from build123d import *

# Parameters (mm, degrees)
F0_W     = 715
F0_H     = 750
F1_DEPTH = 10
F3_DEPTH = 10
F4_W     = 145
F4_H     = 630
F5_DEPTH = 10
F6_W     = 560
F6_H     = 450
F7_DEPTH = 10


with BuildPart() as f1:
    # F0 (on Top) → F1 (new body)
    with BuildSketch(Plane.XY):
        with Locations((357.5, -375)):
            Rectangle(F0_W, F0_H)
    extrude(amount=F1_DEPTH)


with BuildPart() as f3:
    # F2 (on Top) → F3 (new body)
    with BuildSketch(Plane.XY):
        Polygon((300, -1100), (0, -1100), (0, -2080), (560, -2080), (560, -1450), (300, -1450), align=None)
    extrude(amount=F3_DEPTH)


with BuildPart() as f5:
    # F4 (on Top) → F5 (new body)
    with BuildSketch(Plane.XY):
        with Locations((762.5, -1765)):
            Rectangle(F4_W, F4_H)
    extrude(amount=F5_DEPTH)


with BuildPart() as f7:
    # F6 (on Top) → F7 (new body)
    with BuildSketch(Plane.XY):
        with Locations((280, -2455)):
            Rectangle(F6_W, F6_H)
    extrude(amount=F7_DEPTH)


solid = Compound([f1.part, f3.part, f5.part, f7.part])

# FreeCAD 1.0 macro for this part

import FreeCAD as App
import Part
import Sketcher

V = App.Vector

doc = App.newDocument("Part")
body = doc.addObject("PartDesign::Body", "Body")

# Sketch on XY plane
sketch1 = doc.addObject("Sketcher::SketchObject", "Sketch")
body.addObject(sketch1)
sketch1.AttachmentSupport = (doc.XY_Plane, [""])
sketch1.MapMode = "FlatFace"
sketch1.addGeometry([
    Part.LineSegment(V(0, 0, 0), V(0, -750, 0)),
    Part.LineSegment(V(0, -750, 0), V(715, -750, 0)),
    Part.LineSegment(V(715, -750, 0), V(715, 0, 0)),
    Part.LineSegment(V(715, 0, 0), V(0, 0, 0)),
], False)
sketch1.addConstraint([
    Sketcher.Constraint("Coincident", 0, 2, 1, 1),
    Sketcher.Constraint("Coincident", 1, 2, 2, 1),
    Sketcher.Constraint("Coincident", 2, 2, 3, 1),
    Sketcher.Constraint("Coincident", 3, 2, 0, 1),
    Sketcher.Constraint("Vertical", 0),
    Sketcher.Constraint("Horizontal", 1),
    Sketcher.Constraint("Vertical", 2),
    Sketcher.Constraint("Horizontal", 3),
    Sketcher.Constraint("Coincident", 3, 2, -1, 1),
    Sketcher.Constraint("DistanceX", 1, 1, 1, 2, 715.0),
    Sketcher.Constraint("DistanceY", 0, 2, 0, 1, 750.0),
])
pad1 = doc.addObject("PartDesign::Pad", "Pad")
body.addObject(pad1)
pad1.Profile = sketch1
pad1.Length = 10
body2 = doc.addObject("PartDesign::Body", "Body001")

# Sketch on XY plane
sketch2 = doc.addObject("Sketcher::SketchObject", "Sketch001")
body2.addObject(sketch2)
sketch2.AttachmentSupport = (doc.getObject("XY_Plane001"), [""])
sketch2.MapMode = "FlatFace"
sketch2.addGeometry([
    Part.LineSegment(V(300, -1100, 0), V(0, -1100, 0)),  # 0
    Part.LineSegment(V(0, -1100, 0), V(0, -2080, 0)),  # 1
    Part.LineSegment(V(0, -2080, 0), V(560, -2080, 0)),  # 2
    Part.LineSegment(V(560, -2080, 0), V(560, -1450, 0)),  # 3
    Part.LineSegment(V(560, -1450, 0), V(300, -1450, 0)),  # 4
    Part.LineSegment(V(300, -1450, 0), V(300, -1100, 0)),  # 5
], False)
sketch2.addConstraint([
    Sketcher.Constraint("Coincident", 0, 2, 1, 1),
    Sketcher.Constraint("Coincident", 1, 2, 2, 1),
    Sketcher.Constraint("Coincident", 2, 2, 3, 1),
    Sketcher.Constraint("Coincident", 3, 2, 4, 1),
    Sketcher.Constraint("Coincident", 4, 2, 5, 1),
    Sketcher.Constraint("Coincident", 5, 2, 0, 1),
    Sketcher.Constraint("Horizontal", 0),
    Sketcher.Constraint("Vertical", 1),
    Sketcher.Constraint("Horizontal", 2),
    Sketcher.Constraint("Vertical", 3),
    Sketcher.Constraint("Horizontal", 4),
    Sketcher.Constraint("Vertical", 5),
    Sketcher.Constraint("PointOnObject", 0, 2, -2),
    Sketcher.Constraint("DistanceX", 0, 2, 0, 1, 300.0),
    Sketcher.Constraint("DistanceX", 2, 1, 2, 2, 560.0),
    Sketcher.Constraint("DistanceY", 1, 2, 1, 1, 980.0),
    Sketcher.Constraint("DistanceY", 3, 1, 3, 2, 630.0),
    Sketcher.Constraint("DistanceY", 0, 2, -1, 1, 1100.0),
])
pad2 = doc.addObject("PartDesign::Pad", "Pad001")
body2.addObject(pad2)
pad2.Profile = sketch2
pad2.Length = 10
body3 = doc.addObject("PartDesign::Body", "Body002")

# Sketch on XY plane
sketch3 = doc.addObject("Sketcher::SketchObject", "Sketch002")
body3.addObject(sketch3)
sketch3.AttachmentSupport = (doc.getObject("XY_Plane002"), [""])
sketch3.MapMode = "FlatFace"
sketch3.addGeometry([
    Part.LineSegment(V(690, -1450, 0), V(690, -2080, 0)),
    Part.LineSegment(V(690, -2080, 0), V(835, -2080, 0)),
    Part.LineSegment(V(835, -2080, 0), V(835, -1450, 0)),
    Part.LineSegment(V(835, -1450, 0), V(690, -1450, 0)),
], False)
sketch3.addConstraint([
    Sketcher.Constraint("Coincident", 0, 2, 1, 1),
    Sketcher.Constraint("Coincident", 1, 2, 2, 1),
    Sketcher.Constraint("Coincident", 2, 2, 3, 1),
    Sketcher.Constraint("Coincident", 3, 2, 0, 1),
    Sketcher.Constraint("Vertical", 0),
    Sketcher.Constraint("Horizontal", 1),
    Sketcher.Constraint("Vertical", 2),
    Sketcher.Constraint("Horizontal", 3),
    Sketcher.Constraint("DistanceX", 1, 1, 1, 2, 145.0),
    Sketcher.Constraint("DistanceY", 0, 2, 0, 1, 630.0),
    Sketcher.Constraint("DistanceX", -1, 1, 0, 2, 690.0),
    Sketcher.Constraint("DistanceY", 0, 2, -1, 1, 2080.0),
])
pad3 = doc.addObject("PartDesign::Pad", "Pad002")
body3.addObject(pad3)
pad3.Profile = sketch3
pad3.Length = 10
body4 = doc.addObject("PartDesign::Body", "Body003")

# Sketch on XY plane
sketch4 = doc.addObject("Sketcher::SketchObject", "Sketch003")
body4.addObject(sketch4)
sketch4.AttachmentSupport = (doc.getObject("XY_Plane003"), [""])
sketch4.MapMode = "FlatFace"
sketch4.addGeometry([
    Part.LineSegment(V(0, -2230, 0), V(0, -2680, 0)),
    Part.LineSegment(V(0, -2680, 0), V(560, -2680, 0)),
    Part.LineSegment(V(560, -2680, 0), V(560, -2230, 0)),
    Part.LineSegment(V(560, -2230, 0), V(0, -2230, 0)),
], False)
sketch4.addConstraint([
    Sketcher.Constraint("Coincident", 0, 2, 1, 1),
    Sketcher.Constraint("Coincident", 1, 2, 2, 1),
    Sketcher.Constraint("Coincident", 2, 2, 3, 1),
    Sketcher.Constraint("Coincident", 3, 2, 0, 1),
    Sketcher.Constraint("Vertical", 0),
    Sketcher.Constraint("Horizontal", 1),
    Sketcher.Constraint("Vertical", 2),
    Sketcher.Constraint("Horizontal", 3),
    Sketcher.Constraint("PointOnObject", 0, 2, -2),
    Sketcher.Constraint("DistanceX", 1, 1, 1, 2, 560.0),
    Sketcher.Constraint("DistanceY", 0, 2, 0, 1, 450.0),
    Sketcher.Constraint("DistanceY", 0, 2, -1, 1, 2680.0),
])
pad4 = doc.addObject("PartDesign::Pad", "Pad003")
body4.addObject(pad4)
pad4.Profile = sketch4
pad4.Length = 10

doc.recompute()
